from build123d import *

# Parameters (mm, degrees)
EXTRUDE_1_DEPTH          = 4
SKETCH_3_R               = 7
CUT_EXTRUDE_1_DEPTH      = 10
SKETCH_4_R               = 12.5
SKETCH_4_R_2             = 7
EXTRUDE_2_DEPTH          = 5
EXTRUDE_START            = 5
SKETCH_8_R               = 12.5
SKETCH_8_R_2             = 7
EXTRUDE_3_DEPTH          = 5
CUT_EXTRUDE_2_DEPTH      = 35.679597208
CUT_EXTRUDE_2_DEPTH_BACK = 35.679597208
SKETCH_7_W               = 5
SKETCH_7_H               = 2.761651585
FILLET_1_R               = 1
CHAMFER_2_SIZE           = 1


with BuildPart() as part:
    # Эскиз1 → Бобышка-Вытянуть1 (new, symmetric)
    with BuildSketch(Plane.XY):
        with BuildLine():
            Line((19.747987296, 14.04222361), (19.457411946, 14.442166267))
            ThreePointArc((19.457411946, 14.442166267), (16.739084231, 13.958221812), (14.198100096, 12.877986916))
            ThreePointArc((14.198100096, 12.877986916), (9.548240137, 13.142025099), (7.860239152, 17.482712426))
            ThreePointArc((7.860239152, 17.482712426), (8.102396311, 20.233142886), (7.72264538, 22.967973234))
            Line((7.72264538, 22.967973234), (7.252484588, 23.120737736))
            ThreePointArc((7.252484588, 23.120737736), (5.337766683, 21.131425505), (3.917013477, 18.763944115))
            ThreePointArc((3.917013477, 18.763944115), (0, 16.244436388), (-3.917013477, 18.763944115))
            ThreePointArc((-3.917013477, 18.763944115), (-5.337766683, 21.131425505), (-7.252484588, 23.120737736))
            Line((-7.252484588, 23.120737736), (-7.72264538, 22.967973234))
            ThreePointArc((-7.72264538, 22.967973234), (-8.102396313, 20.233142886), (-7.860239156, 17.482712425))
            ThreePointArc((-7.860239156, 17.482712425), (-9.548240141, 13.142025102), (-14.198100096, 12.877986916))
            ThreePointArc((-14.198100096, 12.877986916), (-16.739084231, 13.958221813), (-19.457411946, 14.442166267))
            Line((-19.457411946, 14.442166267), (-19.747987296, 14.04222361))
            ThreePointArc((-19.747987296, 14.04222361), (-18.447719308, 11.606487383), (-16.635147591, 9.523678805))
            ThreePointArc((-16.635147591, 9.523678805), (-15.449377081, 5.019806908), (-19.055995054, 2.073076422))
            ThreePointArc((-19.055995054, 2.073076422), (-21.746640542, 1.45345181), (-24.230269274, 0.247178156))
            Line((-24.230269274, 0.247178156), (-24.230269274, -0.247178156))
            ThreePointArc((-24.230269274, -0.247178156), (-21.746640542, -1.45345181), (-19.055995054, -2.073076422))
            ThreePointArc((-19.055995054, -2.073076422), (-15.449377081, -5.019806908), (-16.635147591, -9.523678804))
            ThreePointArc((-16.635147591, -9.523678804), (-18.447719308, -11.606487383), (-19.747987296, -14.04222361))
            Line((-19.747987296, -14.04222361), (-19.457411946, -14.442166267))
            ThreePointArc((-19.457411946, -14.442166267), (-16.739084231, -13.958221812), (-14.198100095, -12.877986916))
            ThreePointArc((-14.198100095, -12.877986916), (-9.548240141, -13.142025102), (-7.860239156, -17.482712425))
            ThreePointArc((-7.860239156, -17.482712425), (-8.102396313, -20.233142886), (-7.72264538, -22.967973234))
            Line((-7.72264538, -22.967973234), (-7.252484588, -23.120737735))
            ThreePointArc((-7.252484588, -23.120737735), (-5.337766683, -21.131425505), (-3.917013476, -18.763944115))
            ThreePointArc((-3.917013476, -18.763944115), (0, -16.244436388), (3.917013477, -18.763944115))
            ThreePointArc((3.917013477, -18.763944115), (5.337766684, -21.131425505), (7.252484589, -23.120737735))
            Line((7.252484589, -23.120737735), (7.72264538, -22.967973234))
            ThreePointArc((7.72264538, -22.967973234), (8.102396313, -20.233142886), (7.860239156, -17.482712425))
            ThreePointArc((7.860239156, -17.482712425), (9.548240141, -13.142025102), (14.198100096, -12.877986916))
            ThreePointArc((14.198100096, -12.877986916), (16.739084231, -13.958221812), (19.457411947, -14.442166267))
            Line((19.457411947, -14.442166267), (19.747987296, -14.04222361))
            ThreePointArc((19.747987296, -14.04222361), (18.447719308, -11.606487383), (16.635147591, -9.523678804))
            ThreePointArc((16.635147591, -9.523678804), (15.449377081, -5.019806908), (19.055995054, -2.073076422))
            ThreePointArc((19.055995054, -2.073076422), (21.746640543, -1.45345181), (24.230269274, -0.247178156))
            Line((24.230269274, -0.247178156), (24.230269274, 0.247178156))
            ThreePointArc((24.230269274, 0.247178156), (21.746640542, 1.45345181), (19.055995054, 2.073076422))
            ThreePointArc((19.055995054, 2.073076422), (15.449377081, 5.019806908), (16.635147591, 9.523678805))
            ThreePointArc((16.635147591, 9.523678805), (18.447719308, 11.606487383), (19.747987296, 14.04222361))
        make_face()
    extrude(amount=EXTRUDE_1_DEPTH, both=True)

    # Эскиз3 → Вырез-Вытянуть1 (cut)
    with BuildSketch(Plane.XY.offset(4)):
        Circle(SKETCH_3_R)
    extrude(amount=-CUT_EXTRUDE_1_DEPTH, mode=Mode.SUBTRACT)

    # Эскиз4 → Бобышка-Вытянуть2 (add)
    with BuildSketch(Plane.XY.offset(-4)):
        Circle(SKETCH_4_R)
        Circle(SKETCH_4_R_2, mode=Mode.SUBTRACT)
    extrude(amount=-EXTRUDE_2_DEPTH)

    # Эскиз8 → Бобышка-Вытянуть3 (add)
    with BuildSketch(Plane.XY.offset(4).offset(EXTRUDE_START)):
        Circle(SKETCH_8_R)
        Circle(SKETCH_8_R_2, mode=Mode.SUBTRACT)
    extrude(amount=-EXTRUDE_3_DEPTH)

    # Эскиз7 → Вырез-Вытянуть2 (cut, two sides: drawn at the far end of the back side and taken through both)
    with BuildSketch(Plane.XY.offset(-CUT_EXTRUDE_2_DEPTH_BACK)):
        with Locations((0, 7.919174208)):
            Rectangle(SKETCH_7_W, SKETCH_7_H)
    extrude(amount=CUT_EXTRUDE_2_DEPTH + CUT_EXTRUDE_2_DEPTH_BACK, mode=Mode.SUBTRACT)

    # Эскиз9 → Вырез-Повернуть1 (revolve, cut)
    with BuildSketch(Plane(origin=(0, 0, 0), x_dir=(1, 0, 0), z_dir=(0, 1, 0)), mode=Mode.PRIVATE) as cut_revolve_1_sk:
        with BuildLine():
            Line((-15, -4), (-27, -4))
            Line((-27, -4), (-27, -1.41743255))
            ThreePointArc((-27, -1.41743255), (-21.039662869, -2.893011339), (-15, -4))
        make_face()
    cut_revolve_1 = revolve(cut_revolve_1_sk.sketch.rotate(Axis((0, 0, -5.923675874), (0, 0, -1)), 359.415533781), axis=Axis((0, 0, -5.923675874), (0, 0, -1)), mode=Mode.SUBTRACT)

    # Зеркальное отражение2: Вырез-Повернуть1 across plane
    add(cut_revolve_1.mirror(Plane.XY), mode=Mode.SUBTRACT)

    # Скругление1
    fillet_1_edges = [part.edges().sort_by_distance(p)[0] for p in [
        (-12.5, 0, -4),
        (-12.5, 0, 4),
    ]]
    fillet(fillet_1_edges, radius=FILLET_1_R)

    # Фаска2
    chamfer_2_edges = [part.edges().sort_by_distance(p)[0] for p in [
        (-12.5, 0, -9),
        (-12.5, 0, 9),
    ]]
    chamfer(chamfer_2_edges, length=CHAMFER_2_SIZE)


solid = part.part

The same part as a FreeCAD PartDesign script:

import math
import FreeCAD as App
import Part
import Sketcher
Q = App.Units.Quantity


def edges_at(feature, points):
    """Names of the edges that pass closest to the given points."""
    edges = feature.Shape.Edges
    near = lambda p: min(range(len(edges)), key=lambda i: edges[i].distToShape(Part.Vertex(*p))[0])
    return sorted({f"Edge{near(p) + 1}" for p in points})


def add_polygon(sketch, points):
    """Adds a closed chain of lines whose ends are joined by coincident constraints."""
    first, n = sketch.GeometryCount, len(points)
    for a, b in zip(points, points[1:] + points[:1]):
        sketch.addGeometry(Part.LineSegment(App.Vector(*a, 0), App.Vector(*b, 0)), False)
    for i in range(n):
        sketch.addConstraint(Sketcher.Constraint("Coincident", first + i, 2, first + (i + 1) % n, 1))

doc = App.newDocument("Part")
params = doc.addObject("Spreadsheet::Sheet", "Params")
for row, (alias, value) in enumerate([
    ("pad1_length", "8 mm"),
    ("sketch2_diameter", "14 mm"),
    ("pocket1_length", "10 mm"),
    ("sketch3_diameter", "25 mm"),
    ("sketch3_diameter2", "14 mm"),
    ("pad2_length", "5 mm"),
    ("sketch4_diameter", "25 mm"),
    ("sketch4_diameter2", "14 mm"),
    ("pad3_length", "5 mm"),
    ("sketch5_width", "5 mm"),
    ("sketch6_radius", "100 mm"),
    ("sketch6_width", "12 mm"),
    ("groove_angle", "360 deg"),
    ("fillet_radius", "1 mm"),
    ("chamfer_size", "1 mm"),
], start=1):
    params.set(f"A{row}", alias)
    params.set(f"B{row}", "=" + value)
    params.setAlias(f"B{row}", alias)

body = doc.addObject("PartDesign::Body", "Body")

sketch1 = body.newObject("Sketcher::SketchObject", "Sketch")
sketch1.AttachmentSupport = (doc.getObject("XY_Plane"), [""])
sketch1.MapMode = "FlatFace"
sketch1.addGeometry(Part.LineSegment(App.Vector(19.75, 14.04, 0), App.Vector(19.46, 14.44, 0)), False)
sketch1.addGeometry(Part.ArcOfCircle(Part.Circle(App.Vector(20.23, 2.21, 0), App.Vector(0, 0, 1), 12.25), math.radians(94), math.radians(119)), False)
sketch1.addGeometry(Part.ArcOfCircle(Part.Circle(App.Vector(12.08, 16.62, 0), App.Vector(0, 0, 1), 4.3), math.radians(169), math.radians(299)), False)
sketch1.addGeometry(Part.ArcOfCircle(Part.Circle(App.Vector(-4.15, 19.93, 0), App.Vector(0, 0, 1), 12.25), math.radians(-12), math.radians(14)), False)
sketch1.addGeometry(Part.LineSegment(App.Vector(7.72, 22.97, 0), App.Vector(7.25, 23.12, 0)), False)
sketch1.addGeometry(Part.ArcOfCircle(Part.Circle(App.Vector(15.07, 13.68, 0), App.Vector(0, 0, 1), 12.25), math.radians(130), math.radians(156)), False)
sketch1.addGeometry(Part.ArcOfCircle(Part.Circle(App.Vector(0, 20.55, 0), App.Vector(0, 0, 1), 4.3), math.radians(-155), math.radians(-25)), False)
sketch1.addGeometry(Part.ArcOfCircle(Part.Circle(App.Vector(-15.07, 13.68, 0), App.Vector(0, 0, 1), 12.25), math.radians(24), math.radians(50)), False)
sketch1.addGeometry(Part.LineSegment(App.Vector(-7.25, 23.12, 0), App.Vector(-7.72, 22.97, 0)), False)
sketch1.addGeometry(Part.ArcOfCircle(Part.Circle(App.Vector(4.15, 19.93, 0), App.Vector(0, 0, 1), 12.25), math.radians(166), math.radians(191)), False)
sketch1.addGeometry(Part.ArcOfCircle(Part.Circle(App.Vector(-12.08, 16.62, 0), App.Vector(0, 0, 1), 4.3), math.radians(-119), math.radians(11)), False)
sketch1.addGeometry(Part.ArcOfCircle(Part.Circle(App.Vector(-20.23, 2.21, 0), App.Vector(0, 0, 1), 12.25), math.radians(60), math.radians(86)), False)
sketch1.addGeometry(Part.LineSegment(App.Vector(-19.46, 14.44, 0), App.Vector(-19.75, 14.04, 0)), False)
sketch1.addGeometry(Part.ArcOfCircle(Part.Circle(App.Vector(-8.36, 18.56, 0), App.Vector(0, 0, 1), 12.25), math.radians(-158), math.radians(-132)), False)
sketch1.addGeometry(Part.ArcOfCircle(Part.Circle(App.Vector(-19.54, 6.35, 0), App.Vector(0, 0, 1), 4.3), math.radians(-83), math.radians(47)), False)
sketch1.addGeometry(Part.ArcOfCircle(Part.Circle(App.Vector(-17.67, -10.1, 0), App.Vector(0, 0, 1), 12.25), math.radians(97), math.radians(122)), False)
sketch1.addGeometry(Part.LineSegment(App.Vector(-24.23, 0.25, 0), App.Vector(-24.23, -0.25, 0)), False)
sketch1.addGeometry(Part.ArcOfCircle(Part.Circle(App.Vector(-17.67, 10.1, 0), App.Vector(0, 0, 1), 12.25), math.radians(-122), math.radians(-97)), False)
sketch1.addGeometry(Part.ArcOfCircle(Part.Circle(App.Vector(-19.54, -6.35, 0), App.Vector(0, 0, 1), 4.3), math.radians(-47), math.radians(83)), False)
sketch1.addGeometry(Part.ArcOfCircle(Part.Circle(App.Vector(-8.36, -18.56, 0), App.Vector(0, 0, 1), 12.25), math.radians(133), math.radians(158)), False)
sketch1.addGeometry(Part.LineSegment(App.Vector(-19.75, -14.04, 0), App.Vector(-19.46, -14.44, 0)), False)
sketch1.addGeometry(Part.ArcOfCircle(Part.Circle(App.Vector(-20.23, -2.21, 0), App.Vector(0, 0, 1), 12.25), math.radians(-86), math.radians(-61)), False)
sketch1.addGeometry(Part.ArcOfCircle(Part.Circle(App.Vector(-12.08, -16.62, 0), App.Vector(0, 0, 1), 4.3), math.radians(-11), math.radians(119)), False)
sketch1.addGeometry(Part.ArcOfCircle(Part.Circle(App.Vector(4.15, -19.93, 0), App.Vector(0, 0, 1), 12.25), math.radians(169), math.radians(194)), False)
sketch1.addGeometry(Part.LineSegment(App.Vector(-7.72, -22.97, 0), App.Vector(-7.25, -23.12, 0)), False)
sketch1.addGeometry(Part.ArcOfCircle(Part.Circle(App.Vector(-15.07, -13.68, 0), App.Vector(0, 0, 1), 12.25), math.radians(-50), math.radians(-25)), False)
sketch1.addGeometry(Part.ArcOfCircle(Part.Circle(App.Vector(0, -20.55, 0), App.Vector(0, 0, 1), 4.3), math.radians(25), math.radians(155)), False)
sketch1.addGeometry(Part.ArcOfCircle(Part.Circle(App.Vector(15.07, -13.68, 0), App.Vector(0, 0, 1), 12.25), math.radians(-155), math.radians(-130)), False)
sketch1.addGeometry(Part.LineSegment(App.Vector(7.25, -23.12, 0), App.Vector(7.72, -22.97, 0)), False)
sketch1.addGeometry(Part.ArcOfCircle(Part.Circle(App.Vector(-4.15, -19.93, 0), App.Vector(0, 0, 1), 12.25), math.radians(-14), math.radians(11)), False)
sketch1.addGeometry(Part.ArcOfCircle(Part.Circle(App.Vector(12.08, -16.62, 0), App.Vector(0, 0, 1), 4.3), math.radians(61), math.radians(191)), False)
sketch1.addGeometry(Part.ArcOfCircle(Part.Circle(App.Vector(20.23, -2.21, 0), App.Vector(0, 0, 1), 12.25), math.radians(-119), math.radians(-94)), False)
sketch1.addGeometry(Part.LineSegment(App.Vector(19.46, -14.44, 0), App.Vector(19.75, -14.04, 0)), False)
sketch1.addGeometry(Part.ArcOfCircle(Part.Circle(App.Vector(8.36, -18.56, 0), App.Vector(0, 0, 1), 12.25), math.radians(22), math.radians(47)), False)
sketch1.addGeometry(Part.ArcOfCircle(Part.Circle(App.Vector(19.54, -6.35, 0), App.Vector(0, 0, 1), 4.3), math.radians(97), math.radians(227)), False)
sketch1.addGeometry(Part.ArcOfCircle(Part.Circle(App.Vector(17.67, 10.1, 0), App.Vector(0, 0, 1), 12.25), math.radians(-84), math.radians(-58)), False)
sketch1.addGeometry(Part.LineSegment(App.Vector(24.23, -0.25, 0), App.Vector(24.23, 0.25, 0)), False)
sketch1.addGeometry(Part.ArcOfCircle(Part.Circle(App.Vector(17.67, -10.1, 0), App.Vector(0, 0, 1), 12.25), math.radians(58), math.radians(83)), False)
sketch1.addGeometry(Part.ArcOfCircle(Part.Circle(App.Vector(19.54, 6.35, 0), App.Vector(0, 0, 1), 4.3), math.radians(133), math.radians(263)), False)
sketch1.addGeometry(Part.ArcOfCircle(Part.Circle(App.Vector(8.36, 18.56, 0), App.Vector(0, 0, 1), 12.25), math.radians(-48), math.radians(-22)), False)
sketch1.addConstraint(Sketcher.Constraint("Coincident", 0, 2, 1, 1))
sketch1.addConstraint(Sketcher.Constraint("Tangent", 1, 2, 2, 2))
sketch1.addConstraint(Sketcher.Constraint("Tangent", 2, 1, 3, 1))
sketch1.addConstraint(Sketcher.Constraint("Coincident", 3, 2, 4, 1))
sketch1.addConstraint(Sketcher.Constraint("Coincident", 4, 2, 5, 1))
sketch1.addConstraint(Sketcher.Constraint("Tangent", 5, 2, 6, 2))
sketch1.addConstraint(Sketcher.Constraint("Tangent", 6, 1, 7, 1))
sketch1.addConstraint(Sketcher.Constraint("Coincident", 7, 2, 8, 1))
sketch1.addConstraint(Sketcher.Constraint("Coincident", 8, 2, 9, 1))
sketch1.addConstraint(Sketcher.Constraint("Tangent", 9, 2, 10, 2))
sketch1.addConstraint(Sketcher.Constraint("Tangent", 10, 1, 11, 1))
sketch1.addConstraint(Sketcher.Constraint("Coincident", 11, 2, 12, 1))
sketch1.addConstraint(Sketcher.Constraint("Coincident", 12, 2, 13, 1))
sketch1.addConstraint(Sketcher.Constraint("Tangent", 13, 2, 14, 2))
sketch1.addConstraint(Sketcher.Constraint("Tangent", 14, 1, 15, 1))
sketch1.addConstraint(Sketcher.Constraint("Coincident", 15, 2, 16, 1))
sketch1.addConstraint(Sketcher.Constraint("Coincident", 16, 2, 17, 1))
sketch1.addConstraint(Sketcher.Constraint("Tangent", 17, 2, 18, 2))
sketch1.addConstraint(Sketcher.Constraint("Tangent", 18, 1, 19, 1))
sketch1.addConstraint(Sketcher.Constraint("Coincident", 19, 2, 20, 1))
sketch1.addConstraint(Sketcher.Constraint("Coincident", 20, 2, 21, 1))
sketch1.addConstraint(Sketcher.Constraint("Tangent", 21, 2, 22, 2))
sketch1.addConstraint(Sketcher.Constraint("Tangent", 22, 1, 23, 1))
sketch1.addConstraint(Sketcher.Constraint("Coincident", 23, 2, 24, 1))
sketch1.addConstraint(Sketcher.Constraint("Coincident", 24, 2, 25, 1))
sketch1.addConstraint(Sketcher.Constraint("Tangent", 25, 2, 26, 2))
sketch1.addConstraint(Sketcher.Constraint("Tangent", 26, 1, 27, 1))
sketch1.addConstraint(Sketcher.Constraint("Coincident", 27, 2, 28, 1))
sketch1.addConstraint(Sketcher.Constraint("Coincident", 28, 2, 29, 1))
sketch1.addConstraint(Sketcher.Constraint("Tangent", 29, 2, 30, 2))
sketch1.addConstraint(Sketcher.Constraint("Tangent", 30, 1, 31, 1))
sketch1.addConstraint(Sketcher.Constraint("Coincident", 31, 2, 32, 1))
sketch1.addConstraint(Sketcher.Constraint("Coincident", 32, 2, 33, 1))
sketch1.addConstraint(Sketcher.Constraint("Tangent", 33, 2, 34, 2))
sketch1.addConstraint(Sketcher.Constraint("Tangent", 34, 1, 35, 1))
sketch1.addConstraint(Sketcher.Constraint("Coincident", 35, 2, 36, 1))
sketch1.addConstraint(Sketcher.Constraint("Coincident", 36, 2, 37, 1))
sketch1.addConstraint(Sketcher.Constraint("Tangent", 37, 2, 38, 2))
sketch1.addConstraint(Sketcher.Constraint("Tangent", 38, 1, 39, 1))
sketch1.addConstraint(Sketcher.Constraint("Coincident", 39, 2, 0, 1))
sketch1.addConstraint(Sketcher.Constraint("Vertical", 16))
sketch1.addConstraint(Sketcher.Constraint("Vertical", 36))
sketch1.addConstraint(Sketcher.Constraint("Equal", 1, 3))
sketch1.addConstraint(Sketcher.Constraint("Equal", 3, 5))
sketch1.addConstraint(Sketcher.Constraint("Equal", 2, 6))
sketch1.addConstraint(Sketcher.Constraint("Equal", 5, 7))
sketch1.addConstraint(Sketcher.Constraint("Equal", 7, 9))
sketch1.addConstraint(Sketcher.Constraint("Equal", 6, 10))
sketch1.addConstraint(Sketcher.Constraint("Equal", 9, 11))
sketch1.addConstraint(Sketcher.Constraint("Equal", 11, 13))
sketch1.addConstraint(Sketcher.Constraint("Equal", 10, 14))
sketch1.addConstraint(Sketcher.Constraint("Equal", 13, 15))
sketch1.addConstraint(Sketcher.Constraint("Equal", 15, 17))
sketch1.addConstraint(Sketcher.Constraint("Equal", 14, 18))
sketch1.addConstraint(Sketcher.Constraint("Equal", 17, 19))
sketch1.addConstraint(Sketcher.Constraint("Equal", 19, 21))
sketch1.addConstraint(Sketcher.Constraint("Equal", 18, 22))
sketch1.addConstraint(Sketcher.Constraint("Equal", 21, 23))
sketch1.addConstraint(Sketcher.Constraint("Equal", 23, 25))
sketch1.addConstraint(Sketcher.Constraint("Equal", 22, 26))
sketch1.addConstraint(Sketcher.Constraint("Equal", 25, 27))
sketch1.addConstraint(Sketcher.Constraint("Equal", 27, 29))
sketch1.addConstraint(Sketcher.Constraint("Equal", 26, 30))
sketch1.addConstraint(Sketcher.Constraint("Equal", 29, 31))
sketch1.addConstraint(Sketcher.Constraint("Equal", 31, 33))
sketch1.addConstraint(Sketcher.Constraint("Equal", 30, 34))
sketch1.addConstraint(Sketcher.Constraint("Equal", 33, 35))
sketch1.addConstraint(Sketcher.Constraint("Equal", 35, 37))
sketch1.addConstraint(Sketcher.Constraint("Equal", 34, 38))
sketch1.addConstraint(Sketcher.Constraint("Equal", 37, 39))
sketch1.addConstraint(Sketcher.Constraint("Symmetric", 1, 3, 21, 3, -1, 1))
sketch1.addConstraint(Sketcher.Constraint("Symmetric", 3, 3, 23, 3, -1, 1))
sketch1.addConstraint(Sketcher.Constraint("Symmetric", 5, 3, 25, 3, -1, 1))
sketch1.addConstraint(Sketcher.Constraint("Symmetric", 7, 3, 27, 3, -1, 1))
sketch1.addConstraint(Sketcher.Constraint("Symmetric", 9, 3, 29, 3, -1, 1))
sketch1.addConstraint(Sketcher.Constraint("Symmetric", 11, 3, 31, 3, -1, 1))
sketch1.addConstraint(Sketcher.Constraint("Symmetric", 13, 3, 33, 3, -1, 1))
sketch1.addConstraint(Sketcher.Constraint("Symmetric", 15, 3, 35, 3, -1, 1))
sketch1.addConstraint(Sketcher.Constraint("Symmetric", 17, 3, 37, 3, -1, 1))
sketch1.addConstraint(Sketcher.Constraint("Symmetric", 19, 3, 39, 3, -1, 1))
sketch1.addConstraint(Sketcher.Constraint("Symmetric", 5, 3, 7, 3, -2))
sketch1.addConstraint(Sketcher.Constraint("Symmetric", 3, 3, 9, 3, -2))
sketch1.addConstraint(Sketcher.Constraint("Symmetric", 1, 3, 11, 3, -2))
sketch1.addConstraint(Sketcher.Constraint("Symmetric", 19, 3, 33, 3, -2))
sketch1.addConstraint(Sketcher.Constraint("Symmetric", 17, 3, 35, 3, -2))
sketch1.addConstraint(Sketcher.Constraint("Parallel", 0, 20))
sketch1.addConstraint(Sketcher.Constraint("Parallel", 4, 24))
sketch1.addConstraint(Sketcher.Constraint("Parallel", 8, 28))
sketch1.addConstraint(Sketcher.Constraint("Parallel", 12, 32))
sketch1.addConstraint(Sketcher.Constraint("Horizontal", 4, 2, 7, 2))
sketch1.addConstraint(Sketcher.Constraint("Horizontal", 3, 2, 8, 2))
sketch1.addConstraint(Sketcher.Constraint("Horizontal", 0, 2, 11, 2))
sketch1.addConstraint(Sketcher.Constraint("Horizontal", 24, 2, 27, 2))
sketch1.addConstraint(Sketcher.Constraint("Horizontal", 20, 2, 31, 2))
sketch1.addConstraint(Sketcher.Constraint("Horizontal", 19, 2, 32, 2))
sketch1.addConstraint(Sketcher.Constraint("Horizontal", 16, 2, 35, 2))
sketch1.addConstraint(Sketcher.Constraint("Vertical", 12, 2, 19, 2))
sketch1.addConstraint(Sketcher.Constraint("Vertical", 8, 2, 23, 2))
sketch1.addConstraint(Sketcher.Constraint("Equal", 0, 4))
sketch1.addConstraint(Sketcher.Constraint("Angle", 0, Q("126 deg")))
sketch1.addConstraint(Sketcher.Constraint("Angle", 4, Q("162 deg")))
sketch1.addConstraint(Sketcher.Constraint("Radius", 1, Q("12.2544 mm")))
sketch1.addConstraint(Sketcher.Constraint("DistanceY", -1, 1, 14, 3, Q("6.349999 mm")))
sketch1.addConstraint(Sketcher.Constraint("Radius", 2, Q("4.304594 mm")))
sketch1.addConstraint(Sketcher.Constraint("DistanceY", -1, 1, 1, 3, Q("2.2123 mm")))
sketch1.addConstraint(Sketcher.Constraint("DistanceX", -1, 1, 1, 2, Q("14.1981 mm")))
sketch1.addConstraint(Sketcher.Constraint("DistanceY", 16, 2, 16, 1, Q("0.494356 mm")))
sketch1.addConstraint(Sketcher.Constraint("DistanceX", 3, 3, -1, 1, Q("4.14815 mm")))
sketch1.addConstraint(Sketcher.Constraint("DistanceY", -1, 1, 6, 3, Q("20.54903 mm")))
sketch1.addConstraint(Sketcher.Constraint("DistanceY", -1, 1, 13, 3, Q("18.55857 mm")))
sketch1.addConstraint(Sketcher.Constraint("DistanceX", 14, 3, -1, 1, Q("19.543289 mm")))
sketch1.addConstraint(Sketcher.Constraint("DistanceY", 15, 3, -1, 1, Q("10.102551 mm")))
sketch1.addConstraint(Sketcher.Constraint("DistanceX", -1, 1, 0, 2, Q("19.457412 mm")))
sketch1.addConstraint(Sketcher.Constraint("DistanceX", -1, 1, 2, 1, Q("7.860239 mm")))
sketch1.addConstraint(Sketcher.Constraint("DistanceX", -1, 1, 5, 3, Q("15.068043 mm")))
pad1 = body.newObject("PartDesign::Pad", "Pad")
pad1.Profile = sketch1
pad1.setExpression("Length", "Params.pad1_length")
pad1.Midplane = True

sketch2 = body.newObject("Sketcher::SketchObject", "Sketch001")
sketch2.AttachmentSupport = (doc.getObject("XY_Plane"), [""])
sketch2.MapMode = "FlatFace"
sketch2.AttachmentOffset = App.Placement(App.Vector(0, 0, 4), App.Rotation())
sketch2.addGeometry(Part.Circle(App.Vector(0, 0, 0), App.Vector(0, 0, 1), 7), False)
sketch2.addConstraint(Sketcher.Constraint("Coincident", 0, 3, -1, 1))
sketch2.addConstraint(Sketcher.Constraint("Diameter", 0, Q("14 mm")))
sketch2.setExpression("Constraints[1]", "Params.sketch2_diameter")
pocket1 = body.newObject("PartDesign::Pocket", "Pocket")
pocket1.Profile = sketch2
pocket1.setExpression("Length", "Params.pocket1_length")

sketch3 = body.newObject("Sketcher::SketchObject", "Sketch002")
sketch3.AttachmentSupport = (doc.getObject("XY_Plane"), [""])
sketch3.MapMode = "FlatFace"
sketch3.AttachmentOffset = App.Placement(App.Vector(0, 0, -4), App.Rotation())
sketch3.addGeometry(Part.Circle(App.Vector(0, 0, 0), App.Vector(0, 0, 1), 12), False)
sketch3.addGeometry(Part.Circle(App.Vector(0, 0, 0), App.Vector(0, 0, 1), 7), False)
sketch3.addConstraint(Sketcher.Constraint("Coincident", 0, 3, -1, 1))
sketch3.addConstraint(Sketcher.Constraint("Coincident", 1, 3, -1, 1))
sketch3.addConstraint(Sketcher.Constraint("Diameter", 0, Q("25 mm")))
sketch3.addConstraint(Sketcher.Constraint("Diameter", 1, Q("14 mm")))
sketch3.setExpression("Constraints[2]", "Params.sketch3_diameter")
sketch3.setExpression("Constraints[3]", "Params.sketch3_diameter2")
pad2 = body.newObject("PartDesign::Pad", "Pad001")
pad2.Profile = sketch3
pad2.setExpression("Length", "Params.pad2_length")
pad2.Reversed = True

sketch4 = body.newObject("Sketcher::SketchObject", "Sketch003")
sketch4.AttachmentSupport = (doc.getObject("XY_Plane"), [""])
sketch4.MapMode = "FlatFace"
sketch4.AttachmentOffset = App.Placement(App.Vector(0, 0, 9), App.Rotation())
sketch4.addGeometry(Part.Circle(App.Vector(0, 0, 0), App.Vector(0, 0, 1), 12), False)
sketch4.addGeometry(Part.Circle(App.Vector(0, 0, 0), App.Vector(0, 0, 1), 7), False)
sketch4.addConstraint(Sketcher.Constraint("Coincident", 0, 3, -1, 1))
sketch4.addConstraint(Sketcher.Constraint("Coincident", 1, 3, -1, 1))
sketch4.addConstraint(Sketcher.Constraint("Diameter", 0, Q("25 mm")))
sketch4.addConstraint(Sketcher.Constraint("Diameter", 1, Q("14 mm")))
sketch4.setExpression("Constraints[2]", "Params.sketch4_diameter")
sketch4.setExpression("Constraints[3]", "Params.sketch4_diameter2")
pad3 = body.newObject("PartDesign::Pad", "Pad002")
pad3.Profile = sketch4
pad3.setExpression("Length", "Params.pad3_length")
pad3.Reversed = True

sketch5 = body.newObject("Sketcher::SketchObject", "Sketch004")
sketch5.AttachmentSupport = (doc.getObject("XY_Plane"), [""])
sketch5.MapMode = "FlatFace"
add_polygon(sketch5, [(-2.5, 9.3), (-2.5, 6.5), (2.5, 6.5), (2.5, 9.3)])
sketch5.addConstraint(Sketcher.Constraint("Vertical", 0))
sketch5.addConstraint(Sketcher.Constraint("Horizontal", 1))
sketch5.addConstraint(Sketcher.Constraint("Vertical", 2))
sketch5.addConstraint(Sketcher.Constraint("Horizontal", 3))
sketch5.addConstraint(Sketcher.Constraint("DistanceX", 1, 1, 1, 2, Q("5 mm")))
sketch5.addConstraint(Sketcher.Constraint("DistanceX", 0, 2, -1, 1, Q("2.5 mm")))
sketch5.addConstraint(Sketcher.Constraint("DistanceY", -1, 1, 2, 2, Q("9.3 mm")))
sketch5.addConstraint(Sketcher.Constraint("DistanceY", 0, 2, 0, 1, Q("2.761652 mm")))
sketch5.setExpression("Constraints[8]", "Params.sketch5_width")
pocket2 = body.newObject("PartDesign::Pocket", "Pocket001")
pocket2.Profile = sketch5
pocket2.Type = "ThroughAll"
pocket2.Midplane = True

sketch6 = body.newObject("Sketcher::SketchObject", "Sketch005")
sketch6.AttachmentSupport = (doc.getObject("XZ_Plane"), [""])
sketch6.MapMode = "FlatFace"
sketch6.addGeometry(Part.LineSegment(App.Vector(-27, 4, 0), App.Vector(-15, 4, 0)), False)
sketch6.addGeometry(Part.ArcOfCircle(Part.Circle(App.Vector(0, -94.9, 0), App.Vector(0, 0, 1), 100), math.radians(98.63), math.radians(105.66)), False)
sketch6.addGeometry(Part.LineSegment(App.Vector(-27, 1.4, 0), App.Vector(-27, 4, 0)), False)
sketch6.addConstraint(Sketcher.Constraint("Coincident", 0, 2, 1, 1))
sketch6.addConstraint(Sketcher.Constraint("Coincident", 1, 2, 2, 1))
sketch6.addConstraint(Sketcher.Constraint("Coincident", 2, 2, 0, 1))
sketch6.addConstraint(Sketcher.Constraint("Horizontal", 0))
sketch6.addConstraint(Sketcher.Constraint("Vertical", 2))
sketch6.addConstraint(Sketcher.Constraint("PointOnObject", 1, 3, -2))
sketch6.addConstraint(Sketcher.Constraint("Radius", 1, Q("100 mm")))
sketch6.addConstraint(Sketcher.Constraint("DistanceX", 0, 1, 0, 2, Q("12 mm")))
sketch6.addConstraint(Sketcher.Constraint("DistanceX", 0, 2, -1, 1, Q("15 mm")))
sketch6.addConstraint(Sketcher.Constraint("DistanceY", -1, 1, 0, 2, Q("4 mm")))
sketch6.setExpression("Constraints[6]", "Params.sketch6_radius")
sketch6.setExpression("Constraints[7]", "Params.sketch6_width")
groove = body.newObject("PartDesign::Groove", "Groove")
groove.Profile = sketch6
groove.ReferenceAxis = (sketch6, ["V_Axis"])
groove.setExpression("Angle", "Params.groove_angle")
doc.recompute()

mirrored = body.newObject("PartDesign::Mirrored", "Mirrored")
mirrored.Originals = [groove]
mirrored.MirrorPlane = (doc.getObject("XY_Plane"), [""])
body.Tip = mirrored
doc.recompute()

fillet = body.newObject("PartDesign::Fillet", "Fillet")
fillet.Base = (mirrored, edges_at(mirrored, [(-12.5, 0, -4), (-12.5, 0, 4)]))
fillet.setExpression("Radius", "Params.fillet_radius")
doc.recompute()

chamfer = body.newObject("PartDesign::Chamfer", "Chamfer")
chamfer.Base = (fillet, edges_at(fillet, [(-12.5, 0, -9), (-12.5, 0, 9)]))
chamfer.setExpression("Size", "Params.chamfer_size")

doc.recompute()
